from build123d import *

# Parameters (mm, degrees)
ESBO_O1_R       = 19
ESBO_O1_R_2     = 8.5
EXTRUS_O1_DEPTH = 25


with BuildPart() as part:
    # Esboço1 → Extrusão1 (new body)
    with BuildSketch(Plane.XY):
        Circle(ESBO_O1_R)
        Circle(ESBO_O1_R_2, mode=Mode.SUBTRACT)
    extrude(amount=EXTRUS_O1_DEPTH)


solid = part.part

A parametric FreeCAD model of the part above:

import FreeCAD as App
import Part
import Sketcher
from FreeCAD import Vector

doc = App.newDocument("Part")
body = doc.addObject("PartDesign::Body", "Body")

# Sketch on XY plane
sketch1 = doc.addObject("Sketcher::SketchObject", "Sketch")
body.addObject(sketch1)
sketch1.AttachmentSupport = (doc.XY_Plane, [""])
sketch1.MapMode = "FlatFace"
sketch1.addGeometry(Part.Circle(Vector(0, 0, 0), Vector(0, 0, 1), 19), False)
sketch1.addGeometry(Part.Circle(Vector(0, 0, 0), Vector(0, 0, 1), 8.5), False)
sketch1.addConstraint(Sketcher.Constraint("Coincident", 0, 3, -1, 1))
sketch1.addConstraint(Sketcher.Constraint("Coincident", 1, 3, -1, 1))
sketch1.addConstraint(Sketcher.Constraint("Diameter", 0, 38.0))
sketch1.addConstraint(Sketcher.Constraint("Diameter", 1, 17.0))
pad1 = doc.addObject("PartDesign::Pad", "Pad")
body.addObject(pad1)
pad1.Profile = sketch1
pad1.Length = 25

doc.recompute()
